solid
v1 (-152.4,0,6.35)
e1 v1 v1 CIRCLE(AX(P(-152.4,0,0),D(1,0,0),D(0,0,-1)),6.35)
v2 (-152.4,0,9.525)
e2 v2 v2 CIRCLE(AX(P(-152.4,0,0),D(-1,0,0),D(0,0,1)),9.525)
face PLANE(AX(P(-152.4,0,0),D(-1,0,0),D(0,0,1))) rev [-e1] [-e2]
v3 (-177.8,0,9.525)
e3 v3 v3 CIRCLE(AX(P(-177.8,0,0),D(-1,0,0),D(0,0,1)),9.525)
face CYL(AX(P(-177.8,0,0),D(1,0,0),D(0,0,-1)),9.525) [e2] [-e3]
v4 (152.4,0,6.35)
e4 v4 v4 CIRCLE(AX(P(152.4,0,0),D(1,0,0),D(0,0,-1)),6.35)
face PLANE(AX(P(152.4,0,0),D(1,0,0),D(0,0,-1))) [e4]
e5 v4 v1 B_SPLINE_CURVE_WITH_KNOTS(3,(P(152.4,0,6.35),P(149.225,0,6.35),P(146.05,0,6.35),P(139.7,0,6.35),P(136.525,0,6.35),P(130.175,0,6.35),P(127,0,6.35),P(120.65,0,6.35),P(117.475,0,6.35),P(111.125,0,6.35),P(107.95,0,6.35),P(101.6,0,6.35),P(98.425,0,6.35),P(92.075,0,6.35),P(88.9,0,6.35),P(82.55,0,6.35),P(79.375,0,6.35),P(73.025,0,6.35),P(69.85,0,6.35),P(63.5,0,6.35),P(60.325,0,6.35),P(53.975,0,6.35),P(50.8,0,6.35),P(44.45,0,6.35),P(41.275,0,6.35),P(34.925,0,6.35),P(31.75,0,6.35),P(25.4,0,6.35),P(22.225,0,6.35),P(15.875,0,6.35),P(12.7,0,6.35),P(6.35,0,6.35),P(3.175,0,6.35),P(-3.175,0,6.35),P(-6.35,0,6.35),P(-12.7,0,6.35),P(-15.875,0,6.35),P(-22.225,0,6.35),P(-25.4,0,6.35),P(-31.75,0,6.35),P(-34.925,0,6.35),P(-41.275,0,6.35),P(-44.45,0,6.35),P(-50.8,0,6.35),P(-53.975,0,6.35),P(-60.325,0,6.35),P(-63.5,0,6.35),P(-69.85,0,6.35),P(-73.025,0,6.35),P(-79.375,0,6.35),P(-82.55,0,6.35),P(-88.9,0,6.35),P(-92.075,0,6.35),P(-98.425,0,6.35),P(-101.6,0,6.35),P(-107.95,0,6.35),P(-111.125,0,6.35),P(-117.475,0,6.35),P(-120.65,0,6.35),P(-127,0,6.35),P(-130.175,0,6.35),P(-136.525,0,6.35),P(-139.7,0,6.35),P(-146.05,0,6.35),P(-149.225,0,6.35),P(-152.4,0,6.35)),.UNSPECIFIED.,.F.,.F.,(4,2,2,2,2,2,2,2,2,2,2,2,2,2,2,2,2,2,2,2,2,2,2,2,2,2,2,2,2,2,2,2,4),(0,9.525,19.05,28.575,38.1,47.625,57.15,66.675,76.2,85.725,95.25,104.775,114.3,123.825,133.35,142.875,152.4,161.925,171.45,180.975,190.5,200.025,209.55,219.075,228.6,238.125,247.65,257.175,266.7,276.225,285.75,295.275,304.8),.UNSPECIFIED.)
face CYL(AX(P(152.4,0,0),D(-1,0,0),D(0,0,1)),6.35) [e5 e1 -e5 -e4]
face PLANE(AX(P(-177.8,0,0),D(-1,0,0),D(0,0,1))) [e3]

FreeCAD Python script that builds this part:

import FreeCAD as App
import Part
import Sketcher
from FreeCAD import Vector
Q = App.Units.Quantity

doc = App.newDocument("Part")
body = doc.addObject("PartDesign::Body", "Body")

sketch1 = doc.addObject("Sketcher::SketchObject", "Sketch")
body.addObject(sketch1)
sketch1.AttachmentSupport = (doc.YZ_Plane, [""])
sketch1.MapMode = "FlatFace"
sketch1.addGeometry(Part.Circle(Vector(0, 0, 0), Vector(0, 0, 1), 6.35), False)
sketch1.addConstraint(Sketcher.Constraint("Coincident", 0, 3, -1, 1))
sketch1.addConstraint(Sketcher.Constraint("Diameter", 0, Q("0.5 in")))
pad1 = doc.addObject("PartDesign::Pad", "Pad")
body.addObject(pad1)
pad1.Profile = sketch1
pad1.Length = Q("12 in")
pad1.Midplane = True

sketch2 = doc.addObject("Sketcher::SketchObject", "Sketch001")
body.addObject(sketch2)
sketch2.AttachmentSupport = (doc.YZ_Plane, [""])
sketch2.MapMode = "FlatFace"
sketch2.AttachmentOffset = App.Placement(Vector(0, 0, -6 * 25.4), App.Rotation())
sketch2.addGeometry(Part.Circle(Vector(0, 0, 0), Vector(0, 0, 1), 9.525), False)
sketch2.addConstraint(Sketcher.Constraint("Coincident", 0, 3, -1, 1))
sketch2.addConstraint(Sketcher.Constraint("Diameter", 0, Q("0.75 in")))
pad2 = doc.addObject("PartDesign::Pad", "Pad001")
body.addObject(pad2)
pad2.Profile = sketch2
pad2.Length = Q("1 in")
pad2.Reversed = True

doc.recompute()
